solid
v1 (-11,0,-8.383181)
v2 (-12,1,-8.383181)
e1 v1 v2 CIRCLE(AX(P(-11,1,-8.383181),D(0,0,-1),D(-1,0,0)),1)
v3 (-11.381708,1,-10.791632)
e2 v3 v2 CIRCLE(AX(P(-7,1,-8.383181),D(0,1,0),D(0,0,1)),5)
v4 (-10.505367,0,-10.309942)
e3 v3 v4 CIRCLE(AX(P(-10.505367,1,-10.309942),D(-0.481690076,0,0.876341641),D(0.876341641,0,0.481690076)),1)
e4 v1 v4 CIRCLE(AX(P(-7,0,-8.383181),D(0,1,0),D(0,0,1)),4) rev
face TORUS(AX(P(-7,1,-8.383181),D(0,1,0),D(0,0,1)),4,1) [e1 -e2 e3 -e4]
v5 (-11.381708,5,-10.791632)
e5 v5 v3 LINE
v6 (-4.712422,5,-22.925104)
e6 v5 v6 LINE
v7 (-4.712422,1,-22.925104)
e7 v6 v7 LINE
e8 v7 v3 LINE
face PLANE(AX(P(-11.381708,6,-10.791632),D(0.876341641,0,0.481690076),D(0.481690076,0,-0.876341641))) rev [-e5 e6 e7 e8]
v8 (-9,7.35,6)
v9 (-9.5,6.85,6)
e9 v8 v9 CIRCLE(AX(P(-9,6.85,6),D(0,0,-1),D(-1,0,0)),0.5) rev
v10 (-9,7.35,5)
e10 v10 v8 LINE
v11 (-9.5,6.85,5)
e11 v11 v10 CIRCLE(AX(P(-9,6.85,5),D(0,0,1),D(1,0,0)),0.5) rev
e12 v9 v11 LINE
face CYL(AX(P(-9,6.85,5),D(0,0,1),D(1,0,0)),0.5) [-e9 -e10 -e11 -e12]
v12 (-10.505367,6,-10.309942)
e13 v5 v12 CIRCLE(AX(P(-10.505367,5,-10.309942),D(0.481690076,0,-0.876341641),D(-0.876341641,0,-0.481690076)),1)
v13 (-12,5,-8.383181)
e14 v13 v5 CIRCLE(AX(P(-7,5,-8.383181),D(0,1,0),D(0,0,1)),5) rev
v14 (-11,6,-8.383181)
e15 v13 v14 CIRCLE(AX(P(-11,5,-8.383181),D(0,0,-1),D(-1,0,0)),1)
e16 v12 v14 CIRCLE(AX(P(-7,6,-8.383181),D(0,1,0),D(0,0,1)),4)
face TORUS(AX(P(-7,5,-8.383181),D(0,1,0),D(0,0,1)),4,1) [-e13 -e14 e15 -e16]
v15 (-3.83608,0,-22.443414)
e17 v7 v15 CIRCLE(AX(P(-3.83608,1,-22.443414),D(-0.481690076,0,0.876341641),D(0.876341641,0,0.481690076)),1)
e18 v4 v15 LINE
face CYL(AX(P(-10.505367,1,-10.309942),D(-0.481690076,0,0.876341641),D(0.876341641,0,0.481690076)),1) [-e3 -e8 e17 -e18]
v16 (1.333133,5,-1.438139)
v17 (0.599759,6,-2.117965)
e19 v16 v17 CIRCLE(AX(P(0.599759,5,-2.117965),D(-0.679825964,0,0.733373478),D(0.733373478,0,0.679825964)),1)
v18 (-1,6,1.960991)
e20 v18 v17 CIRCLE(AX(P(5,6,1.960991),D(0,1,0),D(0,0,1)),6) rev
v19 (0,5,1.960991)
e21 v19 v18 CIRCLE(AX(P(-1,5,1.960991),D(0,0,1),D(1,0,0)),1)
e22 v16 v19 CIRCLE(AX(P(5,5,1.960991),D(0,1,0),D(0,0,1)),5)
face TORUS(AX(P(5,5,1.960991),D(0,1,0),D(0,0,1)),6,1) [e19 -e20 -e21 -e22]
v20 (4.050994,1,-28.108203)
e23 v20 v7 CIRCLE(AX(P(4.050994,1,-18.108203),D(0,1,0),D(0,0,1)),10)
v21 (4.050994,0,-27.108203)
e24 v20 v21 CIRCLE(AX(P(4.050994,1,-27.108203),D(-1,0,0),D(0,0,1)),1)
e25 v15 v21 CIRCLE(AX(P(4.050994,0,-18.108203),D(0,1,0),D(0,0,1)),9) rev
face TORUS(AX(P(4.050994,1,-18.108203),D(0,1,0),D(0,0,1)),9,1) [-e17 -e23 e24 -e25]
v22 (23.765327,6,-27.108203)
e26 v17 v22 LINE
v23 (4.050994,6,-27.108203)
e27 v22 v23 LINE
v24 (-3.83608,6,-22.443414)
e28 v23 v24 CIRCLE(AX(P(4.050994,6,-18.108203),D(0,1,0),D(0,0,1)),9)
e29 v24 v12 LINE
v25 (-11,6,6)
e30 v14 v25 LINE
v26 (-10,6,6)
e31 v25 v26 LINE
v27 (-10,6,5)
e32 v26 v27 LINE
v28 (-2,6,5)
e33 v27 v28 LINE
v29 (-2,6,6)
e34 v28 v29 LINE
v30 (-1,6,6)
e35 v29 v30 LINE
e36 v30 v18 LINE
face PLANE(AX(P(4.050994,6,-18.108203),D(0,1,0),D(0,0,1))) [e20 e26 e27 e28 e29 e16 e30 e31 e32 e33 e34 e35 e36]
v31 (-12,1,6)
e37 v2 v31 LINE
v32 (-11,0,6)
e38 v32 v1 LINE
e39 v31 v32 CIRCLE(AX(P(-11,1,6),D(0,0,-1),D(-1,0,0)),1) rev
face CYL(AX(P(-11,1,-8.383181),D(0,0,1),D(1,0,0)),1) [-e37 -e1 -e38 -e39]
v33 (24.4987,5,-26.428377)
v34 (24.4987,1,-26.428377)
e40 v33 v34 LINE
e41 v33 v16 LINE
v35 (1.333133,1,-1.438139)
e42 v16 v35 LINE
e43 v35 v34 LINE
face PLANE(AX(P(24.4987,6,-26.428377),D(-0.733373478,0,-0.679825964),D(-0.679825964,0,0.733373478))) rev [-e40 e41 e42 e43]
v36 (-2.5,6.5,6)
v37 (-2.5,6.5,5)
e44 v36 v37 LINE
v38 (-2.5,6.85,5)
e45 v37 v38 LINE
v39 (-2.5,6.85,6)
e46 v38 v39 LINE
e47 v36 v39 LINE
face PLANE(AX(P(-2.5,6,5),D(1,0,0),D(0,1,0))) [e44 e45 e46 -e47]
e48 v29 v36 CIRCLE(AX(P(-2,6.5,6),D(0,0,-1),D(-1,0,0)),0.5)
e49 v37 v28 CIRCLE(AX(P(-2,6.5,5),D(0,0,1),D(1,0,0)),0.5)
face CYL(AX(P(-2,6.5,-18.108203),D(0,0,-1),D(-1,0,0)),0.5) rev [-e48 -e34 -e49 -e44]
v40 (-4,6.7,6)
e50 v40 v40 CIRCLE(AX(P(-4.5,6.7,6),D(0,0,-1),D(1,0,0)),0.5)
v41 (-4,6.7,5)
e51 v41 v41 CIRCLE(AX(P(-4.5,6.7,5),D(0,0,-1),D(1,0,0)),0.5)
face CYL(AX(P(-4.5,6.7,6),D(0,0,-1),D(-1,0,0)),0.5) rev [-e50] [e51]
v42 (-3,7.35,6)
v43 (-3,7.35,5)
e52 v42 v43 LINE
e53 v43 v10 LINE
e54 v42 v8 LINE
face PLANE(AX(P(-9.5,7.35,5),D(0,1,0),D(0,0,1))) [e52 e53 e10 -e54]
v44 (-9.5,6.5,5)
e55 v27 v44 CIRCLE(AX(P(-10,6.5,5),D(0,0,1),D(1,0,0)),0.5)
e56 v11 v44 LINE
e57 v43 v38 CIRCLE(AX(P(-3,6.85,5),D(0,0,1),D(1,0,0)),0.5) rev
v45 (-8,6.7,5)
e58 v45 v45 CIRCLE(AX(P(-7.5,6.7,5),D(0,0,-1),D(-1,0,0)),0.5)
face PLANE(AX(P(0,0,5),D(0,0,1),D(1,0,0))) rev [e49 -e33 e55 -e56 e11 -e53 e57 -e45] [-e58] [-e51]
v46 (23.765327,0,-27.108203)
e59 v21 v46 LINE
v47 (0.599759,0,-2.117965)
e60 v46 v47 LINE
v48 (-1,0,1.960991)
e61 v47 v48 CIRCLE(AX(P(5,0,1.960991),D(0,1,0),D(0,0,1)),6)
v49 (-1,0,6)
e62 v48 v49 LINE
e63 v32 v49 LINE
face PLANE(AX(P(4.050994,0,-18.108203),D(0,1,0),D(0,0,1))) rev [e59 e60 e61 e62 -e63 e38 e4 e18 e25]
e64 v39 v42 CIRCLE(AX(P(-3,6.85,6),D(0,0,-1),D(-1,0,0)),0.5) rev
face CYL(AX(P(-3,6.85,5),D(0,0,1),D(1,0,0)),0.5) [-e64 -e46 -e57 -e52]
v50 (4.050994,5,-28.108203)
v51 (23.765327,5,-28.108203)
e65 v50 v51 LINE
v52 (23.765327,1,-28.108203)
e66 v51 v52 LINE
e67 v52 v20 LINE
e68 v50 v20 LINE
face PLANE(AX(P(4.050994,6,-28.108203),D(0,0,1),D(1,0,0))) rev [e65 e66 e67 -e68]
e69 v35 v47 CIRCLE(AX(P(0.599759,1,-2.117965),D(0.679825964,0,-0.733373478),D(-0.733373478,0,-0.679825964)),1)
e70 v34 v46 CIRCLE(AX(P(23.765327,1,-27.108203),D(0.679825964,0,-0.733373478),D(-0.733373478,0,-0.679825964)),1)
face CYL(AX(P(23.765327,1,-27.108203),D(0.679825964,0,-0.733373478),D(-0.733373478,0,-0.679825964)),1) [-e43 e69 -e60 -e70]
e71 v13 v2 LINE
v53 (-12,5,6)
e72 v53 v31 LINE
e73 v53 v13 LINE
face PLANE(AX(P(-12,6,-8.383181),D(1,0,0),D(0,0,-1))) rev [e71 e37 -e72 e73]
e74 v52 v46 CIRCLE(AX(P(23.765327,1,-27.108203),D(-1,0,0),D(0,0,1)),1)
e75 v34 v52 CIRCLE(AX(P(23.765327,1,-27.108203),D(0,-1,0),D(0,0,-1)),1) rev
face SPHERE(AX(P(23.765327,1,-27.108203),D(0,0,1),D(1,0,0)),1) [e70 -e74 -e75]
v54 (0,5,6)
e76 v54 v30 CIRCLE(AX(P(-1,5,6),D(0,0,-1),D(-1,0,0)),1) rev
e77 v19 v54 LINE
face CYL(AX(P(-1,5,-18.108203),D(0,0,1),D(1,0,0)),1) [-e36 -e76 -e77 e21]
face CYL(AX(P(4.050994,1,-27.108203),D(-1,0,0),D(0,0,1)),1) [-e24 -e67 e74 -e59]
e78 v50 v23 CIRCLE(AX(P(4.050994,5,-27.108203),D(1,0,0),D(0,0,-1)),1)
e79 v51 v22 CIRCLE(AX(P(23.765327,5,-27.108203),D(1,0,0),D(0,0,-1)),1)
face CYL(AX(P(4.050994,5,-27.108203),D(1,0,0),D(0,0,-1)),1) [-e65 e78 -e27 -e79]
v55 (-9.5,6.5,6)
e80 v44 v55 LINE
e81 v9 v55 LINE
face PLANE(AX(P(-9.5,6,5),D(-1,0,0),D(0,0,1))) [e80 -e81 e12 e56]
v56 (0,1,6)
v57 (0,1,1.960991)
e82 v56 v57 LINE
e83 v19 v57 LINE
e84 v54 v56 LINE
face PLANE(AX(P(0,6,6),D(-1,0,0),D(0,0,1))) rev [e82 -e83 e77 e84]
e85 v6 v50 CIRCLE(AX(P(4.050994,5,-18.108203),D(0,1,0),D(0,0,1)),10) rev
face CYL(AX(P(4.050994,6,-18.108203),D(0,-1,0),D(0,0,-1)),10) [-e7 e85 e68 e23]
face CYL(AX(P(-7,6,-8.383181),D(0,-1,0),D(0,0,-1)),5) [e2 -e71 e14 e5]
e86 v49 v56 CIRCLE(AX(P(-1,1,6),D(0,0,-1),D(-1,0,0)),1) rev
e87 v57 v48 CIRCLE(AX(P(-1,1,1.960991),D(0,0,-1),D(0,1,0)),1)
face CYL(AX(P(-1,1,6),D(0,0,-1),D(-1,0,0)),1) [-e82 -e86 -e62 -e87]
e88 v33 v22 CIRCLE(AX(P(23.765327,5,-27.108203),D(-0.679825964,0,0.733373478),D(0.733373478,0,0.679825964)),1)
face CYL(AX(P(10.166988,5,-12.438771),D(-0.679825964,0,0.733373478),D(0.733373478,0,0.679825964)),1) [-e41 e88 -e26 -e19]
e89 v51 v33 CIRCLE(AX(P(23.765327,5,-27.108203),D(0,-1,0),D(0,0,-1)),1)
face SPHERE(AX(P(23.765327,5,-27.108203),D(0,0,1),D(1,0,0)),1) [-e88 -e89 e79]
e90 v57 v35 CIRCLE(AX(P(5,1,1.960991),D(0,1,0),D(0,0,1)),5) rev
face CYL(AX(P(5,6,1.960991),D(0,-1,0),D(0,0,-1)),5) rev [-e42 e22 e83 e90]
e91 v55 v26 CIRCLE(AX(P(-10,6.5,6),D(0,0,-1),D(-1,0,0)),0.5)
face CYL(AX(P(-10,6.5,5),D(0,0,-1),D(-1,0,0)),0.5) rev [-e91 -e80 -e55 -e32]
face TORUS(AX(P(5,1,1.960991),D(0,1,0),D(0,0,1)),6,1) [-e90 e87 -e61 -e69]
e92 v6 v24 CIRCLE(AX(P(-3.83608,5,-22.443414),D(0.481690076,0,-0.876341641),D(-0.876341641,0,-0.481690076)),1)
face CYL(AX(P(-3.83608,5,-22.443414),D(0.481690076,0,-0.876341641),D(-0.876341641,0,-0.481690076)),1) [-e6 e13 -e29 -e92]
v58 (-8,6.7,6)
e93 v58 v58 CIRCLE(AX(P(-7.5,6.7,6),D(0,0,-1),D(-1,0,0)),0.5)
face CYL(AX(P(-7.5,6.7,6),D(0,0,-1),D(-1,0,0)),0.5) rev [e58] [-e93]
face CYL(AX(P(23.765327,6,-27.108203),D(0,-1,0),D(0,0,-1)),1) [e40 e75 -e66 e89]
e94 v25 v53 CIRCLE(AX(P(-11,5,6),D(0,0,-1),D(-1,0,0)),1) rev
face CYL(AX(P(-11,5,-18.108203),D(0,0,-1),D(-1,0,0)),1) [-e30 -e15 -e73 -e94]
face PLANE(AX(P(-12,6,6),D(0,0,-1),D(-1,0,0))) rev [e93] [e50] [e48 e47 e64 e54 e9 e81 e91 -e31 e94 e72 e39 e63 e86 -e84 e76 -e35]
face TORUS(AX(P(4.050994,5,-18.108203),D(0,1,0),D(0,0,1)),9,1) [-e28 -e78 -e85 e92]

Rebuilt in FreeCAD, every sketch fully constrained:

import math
import FreeCAD as App
import Part
import Sketcher

V = App.Vector


def edges_at(feature, points):
    """Names of the edges that pass closest to the given points."""
    edges = feature.Shape.Edges
    near = lambda p: min(range(len(edges)), key=lambda i: edges[i].distToShape(Part.Vertex(*p))[0])
    return sorted({f"Edge{near(p) + 1}" for p in points})


def add_polygon(sketch, points):
    """Adds a closed chain of lines whose ends are joined by coincident constraints."""
    first, n = sketch.GeometryCount, len(points)
    for a, b in zip(points, points[1:] + points[:1]):
        sketch.addGeometry(Part.LineSegment(App.Vector(*a, 0), App.Vector(*b, 0)), False)
    for i in range(n):
        sketch.addConstraint(Sketcher.Constraint("Coincident", first + i, 2, first + (i + 1) % n, 1))

doc = App.newDocument("Part")
body = doc.addObject("PartDesign::Body", "Body")

# Sketch on XZ plane
sketch1 = doc.addObject("Sketcher::SketchObject", "Sketch")
body.addObject(sketch1)
sketch1.AttachmentSupport = (doc.XZ_Plane, [""])
sketch1.MapMode = "FlatFace"
sketch1.addGeometry([
    Part.LineSegment(V(-4.7, -22.9, 0), V(-11.4, -10.8, 0)),  # 0
    Part.ArcOfCircle(Part.Circle(V(-7, -8.4, 0), V(0, 0, 1), 5), math.radians(180), math.radians(209)),  # 1
    Part.LineSegment(V(-12, -8.4, 0), V(-12, 6, 0)),  # 2
    Part.LineSegment(V(-12, 6, 0), V(0, 6, 0)),  # 3
    Part.LineSegment(V(0, 6, 0), V(0, 2, 0)),  # 4
    Part.ArcOfCircle(Part.Circle(V(5, 2, 0), V(0, 0, 1), 5), math.radians(-180), math.radians(-137)),  # 5
    Part.LineSegment(V(1.3, -1.4, 0), V(24.5, -26.4, 0)),  # 6
    Part.ArcOfCircle(Part.Circle(V(23.8, -27.1, 0), V(0, 0, 1), 1), math.radians(-90), math.radians(43)),  # 7
    Part.LineSegment(V(23.8, -28.1, 0), V(4.1, -28.1, 0)),  # 8
    Part.ArcOfCircle(Part.Circle(V(4.1, -18.1, 0), V(0, 0, 1), 10), math.radians(-151), math.radians(-90)),  # 9
], False)
sketch1.addConstraint([
    Sketcher.Constraint("Tangent", 0, 2, 1, 2),
    Sketcher.Constraint("Tangent", 1, 1, 2, 1),
    Sketcher.Constraint("Coincident", 2, 2, 3, 1),
    Sketcher.Constraint("Coincident", 3, 2, 4, 1),
    Sketcher.Constraint("Tangent", 4, 2, 5, 1),
    Sketcher.Constraint("Tangent", 5, 2, 6, 1),
    Sketcher.Constraint("Tangent", 6, 2, 7, 2),
    Sketcher.Constraint("Tangent", 7, 1, 8, 1),
    Sketcher.Constraint("Tangent", 8, 2, 9, 2),
    Sketcher.Constraint("Tangent", 9, 1, 0, 1),
    Sketcher.Constraint("Vertical", 2),
    Sketcher.Constraint("Horizontal", 3),
    Sketcher.Constraint("Vertical", 4),
    Sketcher.Constraint("Horizontal", 8),
    Sketcher.Constraint("Equal", 1, 5),
    Sketcher.Constraint("PointOnObject", 3, 2, -2),
    Sketcher.Constraint("Radius", 1, 5.0),
    Sketcher.Constraint("Radius", 7, 1.0),
    Sketcher.Constraint("Radius", 9, 10.0),
    Sketcher.Constraint("DistanceX", 3, 1, 3, 2, 12.0),
    Sketcher.Constraint("DistanceY", -1, 1, 2, 2, 6.0),
    Sketcher.Constraint("DistanceY", 2, 1, 2, 2, 14.383181),
    Sketcher.Constraint("DistanceY", 4, 2, 4, 1, 4.039009),
    Sketcher.Constraint("DistanceX", -1, 1, 6, 2, 24.4987),
    Sketcher.Constraint("DistanceY", 9, 1, 9, 3, 4.816901),
    Sketcher.Constraint("DistanceX", 8, 2, 8, 1, 19.714333),
])
pad1 = doc.addObject("PartDesign::Pad", "Pad")
body.addObject(pad1)
pad1.Profile = sketch1
pad1.Length = 6
pad1.Reversed = True
doc.recompute()

fillet = doc.addObject("PartDesign::Fillet", "Fillet")
body.addObject(fillet)
fillet.Base = (pad1, edges_at(pad1, [
    (-11.843, 6, -9.626),
    (-12, 6, -1.192),
    (0, 6, 3.98),
    (0.345, 6, 0.135),
    (12.916, 6, -13.933),
    (24.682, 6, -27.508),
    (13.908, 6, -28.108),
    (-1.04, 6, -26.715),
    (-8.047, 6, -16.858),
]))
fillet.Radius = 1
doc.recompute()

fillet2 = doc.addObject("PartDesign::Fillet", "Fillet001")
body.addObject(fillet2)
fillet2.Base = (fillet, edges_at(fillet, [
    (12.916, 0, -13.933),
    (0.345, 0, 0.135),
    (0, 0, 3.98),
    (-12, 0, -1.192),
    (-11.843, 0, -9.626),
    (-8.047, 0, -16.858),
    (-1.04, 0, -26.715),
    (13.908, 0, -28.108),
    (24.682, 0, -27.508),
]))
fillet2.Radius = 1

# Sketch on XY plane
sketch2 = doc.addObject("Sketcher::SketchObject", "Sketch001")
body.addObject(sketch2)
sketch2.AttachmentSupport = (doc.XY_Plane, [""])
sketch2.MapMode = "FlatFace"
sketch2.AttachmentOffset = App.Placement(V(0, 0, 6), App.Rotation())
add_polygon(sketch2, [(-9.5, 7.3), (-9.5, 6), (-2.5, 6), (-2.5, 7.3)])  # lines 0-3
sketch2.addConstraint([
    Sketcher.Constraint("Vertical", 0),
    Sketcher.Constraint("Horizontal", 1),
    Sketcher.Constraint("Vertical", 2),
    Sketcher.Constraint("Horizontal", 3),
    Sketcher.Constraint("DistanceX", 1, 1, 1, 2, 7.0),
    Sketcher.Constraint("DistanceY", -1, 1, 0, 2, 6.0),
    Sketcher.Constraint("DistanceY", 0, 2, 0, 1, 1.35),
    Sketcher.Constraint("DistanceX", 0, 2, -1, 1, 9.5),
])
pad2 = doc.addObject("PartDesign::Pad", "Pad001")
body.addObject(pad2)
pad2.Profile = sketch2
pad2.Length = 1
pad2.Reversed = True
doc.recompute()

fillet3 = doc.addObject("PartDesign::Fillet", "Fillet002")
body.addObject(fillet3)
fillet3.Base = (pad2, edges_at(pad2, [
    (-2.5, 6, 5.5),
    (-9.5, 6, 5.5),
    (-9.5, 7.35, 5.5),
    (-2.5, 7.35, 5.5),
]))
fillet3.Radius = 0.5

# Sketch on XY plane
sketch3 = doc.addObject("Sketcher::SketchObject", "Sketch002")
body.addObject(sketch3)
sketch3.AttachmentSupport = (doc.XY_Plane, [""])
sketch3.MapMode = "FlatFace"
sketch3.AttachmentOffset = App.Placement(V(0, 0, 5), App.Rotation())
sketch3.addGeometry([
    Part.Circle(V(-7.5, 6.7, 0), V(0, 0, 1), 0.5),
    Part.Circle(V(-4.5, 6.7, 0), V(0, 0, 1), 0.5),
], False)
sketch3.addConstraint([
    Sketcher.Constraint("Equal", 0, 1),
    Sketcher.Constraint("Horizontal", 0, 3, 1, 3),
    Sketcher.Constraint("Diameter", 0, 1.0),
    Sketcher.Constraint("DistanceX", 0, 3, 1, 3, 3.0),
    Sketcher.Constraint("DistanceX", 0, 3, -1, 1, 7.5),
    Sketcher.Constraint("DistanceY", -1, 1, 0, 3, 6.7),
])
pocket1 = doc.addObject("PartDesign::Pocket", "Pocket")
body.addObject(pocket1)
pocket1.Profile = sketch3
pocket1.Length = 1
pocket1.Reversed = True

doc.recompute()
